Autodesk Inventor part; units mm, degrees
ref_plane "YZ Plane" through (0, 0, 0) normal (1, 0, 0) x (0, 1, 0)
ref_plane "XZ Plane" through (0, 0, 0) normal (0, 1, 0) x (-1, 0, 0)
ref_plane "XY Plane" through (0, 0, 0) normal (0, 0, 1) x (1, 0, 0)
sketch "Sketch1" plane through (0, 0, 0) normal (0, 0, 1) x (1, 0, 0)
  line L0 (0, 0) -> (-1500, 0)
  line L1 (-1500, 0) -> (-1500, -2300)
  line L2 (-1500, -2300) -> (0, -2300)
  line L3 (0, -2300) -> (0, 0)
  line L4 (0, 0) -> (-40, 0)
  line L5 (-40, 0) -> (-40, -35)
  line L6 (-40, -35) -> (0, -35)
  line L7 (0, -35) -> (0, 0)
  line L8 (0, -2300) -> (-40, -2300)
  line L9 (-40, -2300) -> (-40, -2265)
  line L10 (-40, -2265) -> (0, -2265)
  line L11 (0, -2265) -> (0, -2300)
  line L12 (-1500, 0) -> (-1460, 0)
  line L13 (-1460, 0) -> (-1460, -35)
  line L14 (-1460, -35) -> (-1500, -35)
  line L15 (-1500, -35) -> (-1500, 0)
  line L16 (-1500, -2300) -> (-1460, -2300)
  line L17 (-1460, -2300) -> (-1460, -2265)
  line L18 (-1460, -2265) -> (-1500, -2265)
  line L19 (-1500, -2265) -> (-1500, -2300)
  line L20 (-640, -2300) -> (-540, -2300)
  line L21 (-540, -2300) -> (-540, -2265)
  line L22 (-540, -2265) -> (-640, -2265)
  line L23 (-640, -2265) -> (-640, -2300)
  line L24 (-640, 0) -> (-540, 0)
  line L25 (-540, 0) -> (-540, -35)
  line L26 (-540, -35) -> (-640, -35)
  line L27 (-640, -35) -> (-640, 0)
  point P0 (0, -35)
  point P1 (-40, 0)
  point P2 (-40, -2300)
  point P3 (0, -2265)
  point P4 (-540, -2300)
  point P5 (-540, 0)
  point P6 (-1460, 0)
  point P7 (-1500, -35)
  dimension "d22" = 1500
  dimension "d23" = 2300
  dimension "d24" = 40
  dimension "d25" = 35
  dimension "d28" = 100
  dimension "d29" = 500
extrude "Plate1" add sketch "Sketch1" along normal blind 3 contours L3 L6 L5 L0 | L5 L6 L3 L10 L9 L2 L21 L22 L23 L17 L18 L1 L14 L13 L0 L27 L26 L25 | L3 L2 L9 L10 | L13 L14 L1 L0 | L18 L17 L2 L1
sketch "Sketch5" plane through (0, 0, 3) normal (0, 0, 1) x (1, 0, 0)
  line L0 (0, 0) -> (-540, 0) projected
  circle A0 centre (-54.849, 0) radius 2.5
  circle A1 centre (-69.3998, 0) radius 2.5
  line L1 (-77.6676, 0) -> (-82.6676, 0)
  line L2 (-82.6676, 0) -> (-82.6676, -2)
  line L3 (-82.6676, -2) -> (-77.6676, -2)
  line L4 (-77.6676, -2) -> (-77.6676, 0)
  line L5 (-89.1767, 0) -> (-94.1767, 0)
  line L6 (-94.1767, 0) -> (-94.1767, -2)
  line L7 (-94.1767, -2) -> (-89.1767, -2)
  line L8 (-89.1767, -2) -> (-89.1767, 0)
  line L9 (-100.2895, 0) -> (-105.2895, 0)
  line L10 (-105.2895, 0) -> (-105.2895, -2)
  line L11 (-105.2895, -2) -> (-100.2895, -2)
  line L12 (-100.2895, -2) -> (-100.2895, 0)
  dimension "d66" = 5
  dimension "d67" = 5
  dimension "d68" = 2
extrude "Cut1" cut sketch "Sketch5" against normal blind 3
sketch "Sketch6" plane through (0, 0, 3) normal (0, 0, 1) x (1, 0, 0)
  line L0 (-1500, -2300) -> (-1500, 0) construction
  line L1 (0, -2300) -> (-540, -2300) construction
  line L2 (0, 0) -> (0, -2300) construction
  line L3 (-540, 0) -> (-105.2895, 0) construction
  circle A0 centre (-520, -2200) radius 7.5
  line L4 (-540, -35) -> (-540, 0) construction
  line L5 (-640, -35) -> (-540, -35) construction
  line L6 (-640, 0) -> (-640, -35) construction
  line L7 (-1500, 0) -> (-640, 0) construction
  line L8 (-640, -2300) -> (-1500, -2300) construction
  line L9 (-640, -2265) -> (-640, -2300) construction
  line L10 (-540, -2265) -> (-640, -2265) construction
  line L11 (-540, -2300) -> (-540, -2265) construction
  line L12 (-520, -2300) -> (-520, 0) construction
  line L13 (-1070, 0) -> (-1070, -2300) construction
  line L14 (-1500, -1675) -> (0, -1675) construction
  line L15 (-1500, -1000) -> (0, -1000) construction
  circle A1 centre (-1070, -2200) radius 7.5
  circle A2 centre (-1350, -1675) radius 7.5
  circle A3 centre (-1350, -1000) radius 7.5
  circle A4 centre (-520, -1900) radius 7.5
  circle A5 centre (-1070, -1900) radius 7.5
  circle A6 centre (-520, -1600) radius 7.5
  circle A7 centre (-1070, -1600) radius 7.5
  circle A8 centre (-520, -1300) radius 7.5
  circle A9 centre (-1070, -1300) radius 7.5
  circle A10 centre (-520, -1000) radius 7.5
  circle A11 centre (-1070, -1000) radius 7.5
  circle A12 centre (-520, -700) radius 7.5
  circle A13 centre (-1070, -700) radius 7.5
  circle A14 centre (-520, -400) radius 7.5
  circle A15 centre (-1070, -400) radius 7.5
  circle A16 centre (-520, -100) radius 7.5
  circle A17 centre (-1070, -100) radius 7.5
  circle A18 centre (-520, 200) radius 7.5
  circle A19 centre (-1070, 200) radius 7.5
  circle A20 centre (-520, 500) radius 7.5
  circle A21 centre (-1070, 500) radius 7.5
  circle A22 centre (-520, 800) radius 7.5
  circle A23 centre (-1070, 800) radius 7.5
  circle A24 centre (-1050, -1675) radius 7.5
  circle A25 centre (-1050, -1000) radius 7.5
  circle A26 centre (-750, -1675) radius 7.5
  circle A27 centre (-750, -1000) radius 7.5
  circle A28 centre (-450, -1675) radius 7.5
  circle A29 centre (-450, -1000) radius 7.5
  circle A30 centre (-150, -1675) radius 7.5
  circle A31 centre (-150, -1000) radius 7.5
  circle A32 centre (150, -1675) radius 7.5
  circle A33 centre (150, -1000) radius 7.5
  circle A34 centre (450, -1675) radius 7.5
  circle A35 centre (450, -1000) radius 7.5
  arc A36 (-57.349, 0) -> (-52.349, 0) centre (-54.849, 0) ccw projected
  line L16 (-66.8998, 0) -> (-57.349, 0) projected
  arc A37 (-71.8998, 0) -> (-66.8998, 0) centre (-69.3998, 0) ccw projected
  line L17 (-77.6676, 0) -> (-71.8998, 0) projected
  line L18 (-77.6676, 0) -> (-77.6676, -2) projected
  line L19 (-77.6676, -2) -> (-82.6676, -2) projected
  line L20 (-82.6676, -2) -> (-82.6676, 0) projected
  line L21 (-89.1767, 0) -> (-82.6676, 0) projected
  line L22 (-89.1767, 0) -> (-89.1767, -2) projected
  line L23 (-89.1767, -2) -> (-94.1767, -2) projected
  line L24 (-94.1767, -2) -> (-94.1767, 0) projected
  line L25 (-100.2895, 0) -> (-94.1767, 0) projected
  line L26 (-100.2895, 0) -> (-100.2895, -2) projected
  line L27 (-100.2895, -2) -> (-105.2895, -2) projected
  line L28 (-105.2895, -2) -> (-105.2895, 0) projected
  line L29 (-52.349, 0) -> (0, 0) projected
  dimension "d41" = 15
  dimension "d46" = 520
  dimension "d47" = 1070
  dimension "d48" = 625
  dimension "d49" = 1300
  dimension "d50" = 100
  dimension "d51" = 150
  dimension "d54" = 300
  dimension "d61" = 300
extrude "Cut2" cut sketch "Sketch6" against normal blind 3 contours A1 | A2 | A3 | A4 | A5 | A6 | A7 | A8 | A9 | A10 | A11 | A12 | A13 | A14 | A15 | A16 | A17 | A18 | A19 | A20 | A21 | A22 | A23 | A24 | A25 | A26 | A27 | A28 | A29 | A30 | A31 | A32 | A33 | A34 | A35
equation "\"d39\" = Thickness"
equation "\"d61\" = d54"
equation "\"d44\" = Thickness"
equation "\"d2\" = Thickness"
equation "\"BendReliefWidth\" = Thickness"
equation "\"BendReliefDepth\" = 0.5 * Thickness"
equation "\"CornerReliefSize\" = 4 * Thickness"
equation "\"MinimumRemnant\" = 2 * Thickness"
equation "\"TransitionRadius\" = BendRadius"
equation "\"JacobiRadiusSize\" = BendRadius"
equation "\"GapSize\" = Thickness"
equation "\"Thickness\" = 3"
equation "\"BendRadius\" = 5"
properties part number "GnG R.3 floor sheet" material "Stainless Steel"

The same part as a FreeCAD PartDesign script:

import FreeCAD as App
import Part
import Sketcher
from FreeCAD import Vector
Q = App.Units.Quantity


def add_polygon(sketch, points):
    """Adds a closed chain of lines whose ends are joined by coincident constraints."""
    first, n = sketch.GeometryCount, len(points)
    for a, b in zip(points, points[1:] + points[:1]):
        sketch.addGeometry(Part.LineSegment(App.Vector(*a, 0), App.Vector(*b, 0)), False)
    for i in range(n):
        sketch.addConstraint(Sketcher.Constraint("Coincident", first + i, 2, first + (i + 1) % n, 1))

doc = App.newDocument("Part")
body = doc.addObject("PartDesign::Body", "Body")

# Sketch on XY plane
sketch1 = body.newObject("Sketcher::SketchObject", "Sketch")
sketch1.AttachmentSupport = (doc.getObject("XY_Plane"), [""])
sketch1.MapMode = "FlatFace"
add_polygon(sketch1, [(0, 0), (-540, 0), (-540, -35), (-640, -35), (-640, 0), (-1500, 0), (-1500, -2300), (-640, -2300), (-640, -2265), (-540, -2265), (-540, -2300), (0, -2300)])  # lines 0-11
sketch1.addConstraint(Sketcher.Constraint("Horizontal", 0))
sketch1.addConstraint(Sketcher.Constraint("Vertical", 1))
sketch1.addConstraint(Sketcher.Constraint("Horizontal", 2))
sketch1.addConstraint(Sketcher.Constraint("Vertical", 3))
sketch1.addConstraint(Sketcher.Constraint("Horizontal", 4))
sketch1.addConstraint(Sketcher.Constraint("Vertical", 5))
sketch1.addConstraint(Sketcher.Constraint("Horizontal", 6))
sketch1.addConstraint(Sketcher.Constraint("Vertical", 7))
sketch1.addConstraint(Sketcher.Constraint("Horizontal", 8))
sketch1.addConstraint(Sketcher.Constraint("Vertical", 9))
sketch1.addConstraint(Sketcher.Constraint("Horizontal", 10))
sketch1.addConstraint(Sketcher.Constraint("Vertical", 11))
sketch1.addConstraint(Sketcher.Constraint("Coincident", 11, 2, -1, 1))
sketch1.addConstraint(Sketcher.Constraint("PointOnObject", 3, 2, -1))
sketch1.addConstraint(Sketcher.Constraint("Horizontal", 6, 2, 9, 2))
sketch1.addConstraint(Sketcher.Constraint("Vertical", 3, 2, 6, 2))
sketch1.addConstraint(Sketcher.Constraint("Vertical", 1, 2, 8, 2))
sketch1.addConstraint(Sketcher.Constraint("Equal", 3, 7))
sketch1.addConstraint(Sketcher.Constraint("DistanceX", 2, 2, 2, 1, Q("100 mm")))
sketch1.addConstraint(Sketcher.Constraint("DistanceY", 1, 2, 1, 1, Q("35 mm")))
sketch1.addConstraint(Sketcher.Constraint("DistanceY", 5, 2, 5, 1, Q("2300 mm")))
sketch1.addConstraint(Sketcher.Constraint("DistanceX", 4, 2, -1, 1, Q("1500 mm")))
sketch1.addConstraint(Sketcher.Constraint("DistanceX", 0, 2, 0, 1, Q("540 mm")))
pad1 = body.newObject("PartDesign::Pad", "Pad")
pad1.Profile = sketch1
pad1.Length = 3

# Sketch on XY plane
sketch2 = body.newObject("Sketcher::SketchObject", "Sketch001")
sketch2.AttachmentSupport = (doc.getObject("XY_Plane"), [""])
sketch2.MapMode = "FlatFace"
sketch2.AttachmentOffset = App.Placement(Vector(0, 0, 3), App.Rotation())
add_polygon(sketch2, [(-77.7, -2), (-77.7, 0), (-82.7, 0), (-82.7, -2)])  # lines 0-3
sketch2.addGeometry(Part.Circle(Vector(-54.8, 0, 0), Vector(0, 0, 1), 2.5), False)  # 4
sketch2.addGeometry(Part.Circle(Vector(-69.4, 0, 0), Vector(0, 0, 1), 2.5), False)  # 5
add_polygon(sketch2, [(-100.3, -2), (-100.3, 0), (-105.3, 0), (-105.3, -2)])  # lines 6-9
add_polygon(sketch2, [(-89.2, -2), (-89.2, 0), (-94.2, 0), (-94.2, -2)])  # lines 10-13
sketch2.addConstraint(Sketcher.Constraint("Vertical", 0))
sketch2.addConstraint(Sketcher.Constraint("Horizontal", 1))
sketch2.addConstraint(Sketcher.Constraint("Vertical", 2))
sketch2.addConstraint(Sketcher.Constraint("Horizontal", 3))
sketch2.addConstraint(Sketcher.Constraint("Vertical", 6))
sketch2.addConstraint(Sketcher.Constraint("Horizontal", 7))
sketch2.addConstraint(Sketcher.Constraint("Vertical", 8))
sketch2.addConstraint(Sketcher.Constraint("Horizontal", 9))
sketch2.addConstraint(Sketcher.Constraint("Vertical", 10))
sketch2.addConstraint(Sketcher.Constraint("Horizontal", 11))
sketch2.addConstraint(Sketcher.Constraint("Vertical", 12))
sketch2.addConstraint(Sketcher.Constraint("Horizontal", 13))
sketch2.addConstraint(Sketcher.Constraint("Equal", 4, 5))
sketch2.addConstraint(Sketcher.Constraint("PointOnObject", 4, 3, -1))
sketch2.addConstraint(Sketcher.Constraint("PointOnObject", 5, 3, -1))
sketch2.addConstraint(Sketcher.Constraint("PointOnObject", 0, 2, -1))
sketch2.addConstraint(Sketcher.Constraint("PointOnObject", 6, 2, -1))
sketch2.addConstraint(Sketcher.Constraint("PointOnObject", 10, 2, -1))
sketch2.addConstraint(Sketcher.Constraint("Horizontal", 3, 2, 8, 2))
sketch2.addConstraint(Sketcher.Constraint("Horizontal", 9, 2, 12, 2))
sketch2.addConstraint(Sketcher.Constraint("Equal", 3, 7))
sketch2.addConstraint(Sketcher.Constraint("Equal", 9, 11))
sketch2.addConstraint(Sketcher.Constraint("Diameter", 4, Q("5 mm")))
sketch2.addConstraint(Sketcher.Constraint("DistanceX", 1, 2, 1, 1, Q("5 mm")))
sketch2.addConstraint(Sketcher.Constraint("DistanceY", 0, 1, 0, 2, Q("2 mm")))
sketch2.addConstraint(Sketcher.Constraint("DistanceX", 4, 3, -1, 1, Q("54.849 mm")))
sketch2.addConstraint(Sketcher.Constraint("DistanceX", 6, 2, 1, 2, Q("17.622 mm")))
sketch2.addConstraint(Sketcher.Constraint("DistanceX", 10, 2, 1, 2, Q("6.509 mm")))
sketch2.addConstraint(Sketcher.Constraint("DistanceX", 5, 3, -1, 1, Q("69.3998 mm")))
sketch2.addConstraint(Sketcher.Constraint("DistanceX", 0, 2, -1, 1, Q("77.6676 mm")))
pocket1 = body.newObject("PartDesign::Pocket", "Pocket")
pocket1.Profile = sketch2
pocket1.Length = 3

# Sketch on XY plane
sketch3 = body.newObject("Sketcher::SketchObject", "Sketch002")
sketch3.AttachmentSupport = (doc.getObject("XY_Plane"), [""])
sketch3.MapMode = "FlatFace"
sketch3.AttachmentOffset = App.Placement(Vector(0, 0, 3), App.Rotation())
sketch3.addGeometry(Part.Circle(Vector(-1070, -2200, 0), Vector(0, 0, 1), 8), False)
sketch3.addGeometry(Part.Circle(Vector(-1350, -1675, 0), Vector(0, 0, 1), 8), False)
sketch3.addGeometry(Part.Circle(Vector(-1350, -1000, 0), Vector(0, 0, 1), 8), False)
sketch3.addGeometry(Part.Circle(Vector(-520, -1900, 0), Vector(0, 0, 1), 8), False)
sketch3.addGeometry(Part.Circle(Vector(-1070, -1900, 0), Vector(0, 0, 1), 8), False)
sketch3.addGeometry(Part.Circle(Vector(-520, -1600, 0), Vector(0, 0, 1), 8), False)
sketch3.addGeometry(Part.Circle(Vector(-1070, -1600, 0), Vector(0, 0, 1), 8), False)
sketch3.addGeometry(Part.Circle(Vector(-520, -1300, 0), Vector(0, 0, 1), 8), False)
sketch3.addGeometry(Part.Circle(Vector(-1070, -1300, 0), Vector(0, 0, 1), 8), False)
sketch3.addGeometry(Part.Circle(Vector(-520, -1000, 0), Vector(0, 0, 1), 8), False)
sketch3.addGeometry(Part.Circle(Vector(-1070, -1000, 0), Vector(0, 0, 1), 8), False)
sketch3.addGeometry(Part.Circle(Vector(-520, -700, 0), Vector(0, 0, 1), 8), False)
sketch3.addGeometry(Part.Circle(Vector(-1070, -700, 0), Vector(0, 0, 1), 8), False)
sketch3.addGeometry(Part.Circle(Vector(-520, -400, 0), Vector(0, 0, 1), 8), False)
sketch3.addGeometry(Part.Circle(Vector(-1070, -400, 0), Vector(0, 0, 1), 8), False)
sketch3.addGeometry(Part.Circle(Vector(-520, -100, 0), Vector(0, 0, 1), 8), False)
sketch3.addGeometry(Part.Circle(Vector(-1070, -100, 0), Vector(0, 0, 1), 8), False)
sketch3.addGeometry(Part.Circle(Vector(-520, 200, 0), Vector(0, 0, 1), 8), False)
sketch3.addGeometry(Part.Circle(Vector(-1070, 200, 0), Vector(0, 0, 1), 8), False)
sketch3.addGeometry(Part.Circle(Vector(-520, 500, 0), Vector(0, 0, 1), 8), False)
sketch3.addGeometry(Part.Circle(Vector(-1070, 500, 0), Vector(0, 0, 1), 8), False)
sketch3.addGeometry(Part.Circle(Vector(-520, 800, 0), Vector(0, 0, 1), 8), False)
sketch3.addGeometry(Part.Circle(Vector(-1070, 800, 0), Vector(0, 0, 1), 8), False)
sketch3.addGeometry(Part.Circle(Vector(-1050, -1675, 0), Vector(0, 0, 1), 8), False)
sketch3.addGeometry(Part.Circle(Vector(-1050, -1000, 0), Vector(0, 0, 1), 8), False)
sketch3.addGeometry(Part.Circle(Vector(-750, -1675, 0), Vector(0, 0, 1), 8), False)
sketch3.addGeometry(Part.Circle(Vector(-750, -1000, 0), Vector(0, 0, 1), 8), False)
sketch3.addGeometry(Part.Circle(Vector(-450, -1675, 0), Vector(0, 0, 1), 8), False)
sketch3.addGeometry(Part.Circle(Vector(-450, -1000, 0), Vector(0, 0, 1), 8), False)
sketch3.addGeometry(Part.Circle(Vector(-150, -1675, 0), Vector(0, 0, 1), 8), False)
sketch3.addGeometry(Part.Circle(Vector(-150, -1000, 0), Vector(0, 0, 1), 8), False)
sketch3.addGeometry(Part.Circle(Vector(150, -1675, 0), Vector(0, 0, 1), 8), False)
sketch3.addGeometry(Part.Circle(Vector(150, -1000, 0), Vector(0, 0, 1), 8), False)
sketch3.addGeometry(Part.Circle(Vector(450, -1675, 0), Vector(0, 0, 1), 8), False)
sketch3.addGeometry(Part.Circle(Vector(450, -1000, 0), Vector(0, 0, 1), 8), False)
sketch3.addConstraint(Sketcher.Constraint("Equal", 0, 1))
sketch3.addConstraint(Sketcher.Constraint("Equal", 1, 2))
sketch3.addConstraint(Sketcher.Constraint("Equal", 2, 3))
sketch3.addConstraint(Sketcher.Constraint("Equal", 3, 4))
sketch3.addConstraint(Sketcher.Constraint("Equal", 4, 5))
sketch3.addConstraint(Sketcher.Constraint("Equal", 5, 6))
sketch3.addConstraint(Sketcher.Constraint("Equal", 6, 7))
sketch3.addConstraint(Sketcher.Constraint("Equal", 7, 8))
sketch3.addConstraint(Sketcher.Constraint("Equal", 8, 9))
sketch3.addConstraint(Sketcher.Constraint("Equal", 9, 10))
sketch3.addConstraint(Sketcher.Constraint("Equal", 10, 11))
sketch3.addConstraint(Sketcher.Constraint("Equal", 11, 12))
sketch3.addConstraint(Sketcher.Constraint("Equal", 12, 13))
sketch3.addConstraint(Sketcher.Constraint("Equal", 13, 14))
sketch3.addConstraint(Sketcher.Constraint("Equal", 14, 15))
sketch3.addConstraint(Sketcher.Constraint("Equal", 15, 16))
sketch3.addConstraint(Sketcher.Constraint("Equal", 16, 17))
sketch3.addConstraint(Sketcher.Constraint("Equal", 17, 18))
sketch3.addConstraint(Sketcher.Constraint("Equal", 18, 19))
sketch3.addConstraint(Sketcher.Constraint("Equal", 19, 20))
sketch3.addConstraint(Sketcher.Constraint("Equal", 20, 21))
sketch3.addConstraint(Sketcher.Constraint("Equal", 21, 22))
sketch3.addConstraint(Sketcher.Constraint("Equal", 22, 23))
sketch3.addConstraint(Sketcher.Constraint("Equal", 23, 24))
sketch3.addConstraint(Sketcher.Constraint("Equal", 24, 25))
sketch3.addConstraint(Sketcher.Constraint("Equal", 25, 26))
sketch3.addConstraint(Sketcher.Constraint("Equal", 26, 27))
sketch3.addConstraint(Sketcher.Constraint("Equal", 27, 28))
sketch3.addConstraint(Sketcher.Constraint("Equal", 28, 29))
sketch3.addConstraint(Sketcher.Constraint("Equal", 29, 30))
sketch3.addConstraint(Sketcher.Constraint("Equal", 30, 31))
sketch3.addConstraint(Sketcher.Constraint("Equal", 31, 32))
sketch3.addConstraint(Sketcher.Constraint("Equal", 32, 33))
sketch3.addConstraint(Sketcher.Constraint("Equal", 33, 34))
sketch3.addConstraint(Sketcher.Constraint("Symmetric", 29, 3, 31, 3, -2))
sketch3.addConstraint(Sketcher.Constraint("Symmetric", 30, 3, 32, 3, -2))
sketch3.addConstraint(Sketcher.Constraint("Symmetric", 27, 3, 33, 3, -2))
sketch3.addConstraint(Sketcher.Constraint("Symmetric", 28, 3, 34, 3, -2))
sketch3.addConstraint(Sketcher.Constraint("Horizontal", 3, 3, 4, 3))
sketch3.addConstraint(Sketcher.Constraint("Horizontal", 5, 3, 6, 3))
sketch3.addConstraint(Sketcher.Constraint("Horizontal", 7, 3, 8, 3))
sketch3.addConstraint(Sketcher.Constraint("Horizontal", 2, 3, 9, 3))
sketch3.addConstraint(Sketcher.Constraint("Horizontal", 9, 3, 10, 3))
sketch3.addConstraint(Sketcher.Constraint("Horizontal", 11, 3, 12, 3))
sketch3.addConstraint(Sketcher.Constraint("Horizontal", 13, 3, 14, 3))
sketch3.addConstraint(Sketcher.Constraint("Horizontal", 15, 3, 16, 3))
sketch3.addConstraint(Sketcher.Constraint("Horizontal", 17, 3, 18, 3))
sketch3.addConstraint(Sketcher.Constraint("Horizontal", 19, 3, 20, 3))
sketch3.addConstraint(Sketcher.Constraint("Horizontal", 21, 3, 22, 3))
sketch3.addConstraint(Sketcher.Constraint("Horizontal", 1, 3, 23, 3))
sketch3.addConstraint(Sketcher.Constraint("Horizontal", 10, 3, 24, 3))
sketch3.addConstraint(Sketcher.Constraint("Horizontal", 23, 3, 25, 3))
sketch3.addConstraint(Sketcher.Constraint("Horizontal", 24, 3, 26, 3))
sketch3.addConstraint(Sketcher.Constraint("Horizontal", 25, 3, 27, 3))
sketch3.addConstraint(Sketcher.Constraint("Horizontal", 26, 3, 28, 3))
sketch3.addConstraint(Sketcher.Constraint("Horizontal", 27, 3, 29, 3))
sketch3.addConstraint(Sketcher.Constraint("Horizontal", 28, 3, 30, 3))
sketch3.addConstraint(Sketcher.Constraint("Vertical", 1, 3, 2, 3))
sketch3.addConstraint(Sketcher.Constraint("Vertical", 0, 3, 4, 3))
sketch3.addConstraint(Sketcher.Constraint("Vertical", 3, 3, 5, 3))
sketch3.addConstraint(Sketcher.Constraint("Vertical", 4, 3, 6, 3))
sketch3.addConstraint(Sketcher.Constraint("Vertical", 5, 3, 7, 3))
sketch3.addConstraint(Sketcher.Constraint("Vertical", 6, 3, 8, 3))
sketch3.addConstraint(Sketcher.Constraint("Vertical", 7, 3, 9, 3))
sketch3.addConstraint(Sketcher.Constraint("Vertical", 8, 3, 10, 3))
sketch3.addConstraint(Sketcher.Constraint("Vertical", 9, 3, 11, 3))
sketch3.addConstraint(Sketcher.Constraint("Vertical", 10, 3, 12, 3))
sketch3.addConstraint(Sketcher.Constraint("Vertical", 11, 3, 13, 3))
sketch3.addConstraint(Sketcher.Constraint("Vertical", 12, 3, 14, 3))
sketch3.addConstraint(Sketcher.Constraint("Vertical", 13, 3, 15, 3))
sketch3.addConstraint(Sketcher.Constraint("Vertical", 14, 3, 16, 3))
sketch3.addConstraint(Sketcher.Constraint("Vertical", 15, 3, 17, 3))
sketch3.addConstraint(Sketcher.Constraint("Vertical", 16, 3, 18, 3))
sketch3.addConstraint(Sketcher.Constraint("Vertical", 17, 3, 19, 3))
sketch3.addConstraint(Sketcher.Constraint("Vertical", 18, 3, 20, 3))
sketch3.addConstraint(Sketcher.Constraint("Vertical", 19, 3, 21, 3))
sketch3.addConstraint(Sketcher.Constraint("Vertical", 20, 3, 22, 3))
sketch3.addConstraint(Sketcher.Constraint("Vertical", 23, 3, 24, 3))
sketch3.addConstraint(Sketcher.Constraint("Vertical", 25, 3, 26, 3))
sketch3.addConstraint(Sketcher.Constraint("Vertical", 27, 3, 28, 3))
sketch3.addConstraint(Sketcher.Constraint("Vertical", 29, 3, 30, 3))
sketch3.addConstraint(Sketcher.Constraint("Diameter", 0, Q("15 mm")))
sketch3.addConstraint(Sketcher.Constraint("DistanceX", 0, 3, -1, 1, Q("1070 mm")))
sketch3.addConstraint(Sketcher.Constraint("DistanceX", 3, 3, -1, 1, Q("520 mm")))
sketch3.addConstraint(Sketcher.Constraint("DistanceY", 7, 3, -1, 1, Q("1300 mm")))
sketch3.addConstraint(Sketcher.Constraint("DistanceY", 15, 3, -1, 1, Q("100 mm")))
sketch3.addConstraint(Sketcher.Constraint("DistanceX", 29, 3, -1, 1, Q("150 mm")))
sketch3.addConstraint(Sketcher.Constraint("DistanceY", 0, 3, 3, 3, Q("300 mm")))
sketch3.addConstraint(Sketcher.Constraint("DistanceY", 3, 3, 5, 3, Q("300 mm")))
sketch3.addConstraint(Sketcher.Constraint("DistanceY", 5, 3, 7, 3, Q("300 mm")))
sketch3.addConstraint(Sketcher.Constraint("DistanceY", 7, 3, 2, 3, Q("300 mm")))
sketch3.addConstraint(Sketcher.Constraint("DistanceY", 9, 3, 11, 3, Q("300 mm")))
sketch3.addConstraint(Sketcher.Constraint("DistanceY", 11, 3, 13, 3, Q("300 mm")))
sketch3.addConstraint(Sketcher.Constraint("DistanceY", 15, 3, 17, 3, Q("300 mm")))
sketch3.addConstraint(Sketcher.Constraint("DistanceY", 17, 3, 19, 3, Q("300 mm")))
sketch3.addConstraint(Sketcher.Constraint("DistanceY", 19, 3, 21, 3, Q("300 mm")))
sketch3.addConstraint(Sketcher.Constraint("DistanceX", 1, 3, 23, 3, Q("300 mm")))
sketch3.addConstraint(Sketcher.Constraint("DistanceX", 23, 3, 25, 3, Q("300 mm")))
sketch3.addConstraint(Sketcher.Constraint("DistanceX", 25, 3, 27, 3, Q("300 mm")))
sketch3.addConstraint(Sketcher.Constraint("DistanceX", 27, 3, 29, 3, Q("300 mm")))
sketch3.addConstraint(Sketcher.Constraint("DistanceY", 1, 3, -1, 1, Q("1675 mm")))
pocket2 = body.newObject("PartDesign::Pocket", "Pocket001")
pocket2.Profile = sketch3
pocket2.Length = 3

doc.recompute()
